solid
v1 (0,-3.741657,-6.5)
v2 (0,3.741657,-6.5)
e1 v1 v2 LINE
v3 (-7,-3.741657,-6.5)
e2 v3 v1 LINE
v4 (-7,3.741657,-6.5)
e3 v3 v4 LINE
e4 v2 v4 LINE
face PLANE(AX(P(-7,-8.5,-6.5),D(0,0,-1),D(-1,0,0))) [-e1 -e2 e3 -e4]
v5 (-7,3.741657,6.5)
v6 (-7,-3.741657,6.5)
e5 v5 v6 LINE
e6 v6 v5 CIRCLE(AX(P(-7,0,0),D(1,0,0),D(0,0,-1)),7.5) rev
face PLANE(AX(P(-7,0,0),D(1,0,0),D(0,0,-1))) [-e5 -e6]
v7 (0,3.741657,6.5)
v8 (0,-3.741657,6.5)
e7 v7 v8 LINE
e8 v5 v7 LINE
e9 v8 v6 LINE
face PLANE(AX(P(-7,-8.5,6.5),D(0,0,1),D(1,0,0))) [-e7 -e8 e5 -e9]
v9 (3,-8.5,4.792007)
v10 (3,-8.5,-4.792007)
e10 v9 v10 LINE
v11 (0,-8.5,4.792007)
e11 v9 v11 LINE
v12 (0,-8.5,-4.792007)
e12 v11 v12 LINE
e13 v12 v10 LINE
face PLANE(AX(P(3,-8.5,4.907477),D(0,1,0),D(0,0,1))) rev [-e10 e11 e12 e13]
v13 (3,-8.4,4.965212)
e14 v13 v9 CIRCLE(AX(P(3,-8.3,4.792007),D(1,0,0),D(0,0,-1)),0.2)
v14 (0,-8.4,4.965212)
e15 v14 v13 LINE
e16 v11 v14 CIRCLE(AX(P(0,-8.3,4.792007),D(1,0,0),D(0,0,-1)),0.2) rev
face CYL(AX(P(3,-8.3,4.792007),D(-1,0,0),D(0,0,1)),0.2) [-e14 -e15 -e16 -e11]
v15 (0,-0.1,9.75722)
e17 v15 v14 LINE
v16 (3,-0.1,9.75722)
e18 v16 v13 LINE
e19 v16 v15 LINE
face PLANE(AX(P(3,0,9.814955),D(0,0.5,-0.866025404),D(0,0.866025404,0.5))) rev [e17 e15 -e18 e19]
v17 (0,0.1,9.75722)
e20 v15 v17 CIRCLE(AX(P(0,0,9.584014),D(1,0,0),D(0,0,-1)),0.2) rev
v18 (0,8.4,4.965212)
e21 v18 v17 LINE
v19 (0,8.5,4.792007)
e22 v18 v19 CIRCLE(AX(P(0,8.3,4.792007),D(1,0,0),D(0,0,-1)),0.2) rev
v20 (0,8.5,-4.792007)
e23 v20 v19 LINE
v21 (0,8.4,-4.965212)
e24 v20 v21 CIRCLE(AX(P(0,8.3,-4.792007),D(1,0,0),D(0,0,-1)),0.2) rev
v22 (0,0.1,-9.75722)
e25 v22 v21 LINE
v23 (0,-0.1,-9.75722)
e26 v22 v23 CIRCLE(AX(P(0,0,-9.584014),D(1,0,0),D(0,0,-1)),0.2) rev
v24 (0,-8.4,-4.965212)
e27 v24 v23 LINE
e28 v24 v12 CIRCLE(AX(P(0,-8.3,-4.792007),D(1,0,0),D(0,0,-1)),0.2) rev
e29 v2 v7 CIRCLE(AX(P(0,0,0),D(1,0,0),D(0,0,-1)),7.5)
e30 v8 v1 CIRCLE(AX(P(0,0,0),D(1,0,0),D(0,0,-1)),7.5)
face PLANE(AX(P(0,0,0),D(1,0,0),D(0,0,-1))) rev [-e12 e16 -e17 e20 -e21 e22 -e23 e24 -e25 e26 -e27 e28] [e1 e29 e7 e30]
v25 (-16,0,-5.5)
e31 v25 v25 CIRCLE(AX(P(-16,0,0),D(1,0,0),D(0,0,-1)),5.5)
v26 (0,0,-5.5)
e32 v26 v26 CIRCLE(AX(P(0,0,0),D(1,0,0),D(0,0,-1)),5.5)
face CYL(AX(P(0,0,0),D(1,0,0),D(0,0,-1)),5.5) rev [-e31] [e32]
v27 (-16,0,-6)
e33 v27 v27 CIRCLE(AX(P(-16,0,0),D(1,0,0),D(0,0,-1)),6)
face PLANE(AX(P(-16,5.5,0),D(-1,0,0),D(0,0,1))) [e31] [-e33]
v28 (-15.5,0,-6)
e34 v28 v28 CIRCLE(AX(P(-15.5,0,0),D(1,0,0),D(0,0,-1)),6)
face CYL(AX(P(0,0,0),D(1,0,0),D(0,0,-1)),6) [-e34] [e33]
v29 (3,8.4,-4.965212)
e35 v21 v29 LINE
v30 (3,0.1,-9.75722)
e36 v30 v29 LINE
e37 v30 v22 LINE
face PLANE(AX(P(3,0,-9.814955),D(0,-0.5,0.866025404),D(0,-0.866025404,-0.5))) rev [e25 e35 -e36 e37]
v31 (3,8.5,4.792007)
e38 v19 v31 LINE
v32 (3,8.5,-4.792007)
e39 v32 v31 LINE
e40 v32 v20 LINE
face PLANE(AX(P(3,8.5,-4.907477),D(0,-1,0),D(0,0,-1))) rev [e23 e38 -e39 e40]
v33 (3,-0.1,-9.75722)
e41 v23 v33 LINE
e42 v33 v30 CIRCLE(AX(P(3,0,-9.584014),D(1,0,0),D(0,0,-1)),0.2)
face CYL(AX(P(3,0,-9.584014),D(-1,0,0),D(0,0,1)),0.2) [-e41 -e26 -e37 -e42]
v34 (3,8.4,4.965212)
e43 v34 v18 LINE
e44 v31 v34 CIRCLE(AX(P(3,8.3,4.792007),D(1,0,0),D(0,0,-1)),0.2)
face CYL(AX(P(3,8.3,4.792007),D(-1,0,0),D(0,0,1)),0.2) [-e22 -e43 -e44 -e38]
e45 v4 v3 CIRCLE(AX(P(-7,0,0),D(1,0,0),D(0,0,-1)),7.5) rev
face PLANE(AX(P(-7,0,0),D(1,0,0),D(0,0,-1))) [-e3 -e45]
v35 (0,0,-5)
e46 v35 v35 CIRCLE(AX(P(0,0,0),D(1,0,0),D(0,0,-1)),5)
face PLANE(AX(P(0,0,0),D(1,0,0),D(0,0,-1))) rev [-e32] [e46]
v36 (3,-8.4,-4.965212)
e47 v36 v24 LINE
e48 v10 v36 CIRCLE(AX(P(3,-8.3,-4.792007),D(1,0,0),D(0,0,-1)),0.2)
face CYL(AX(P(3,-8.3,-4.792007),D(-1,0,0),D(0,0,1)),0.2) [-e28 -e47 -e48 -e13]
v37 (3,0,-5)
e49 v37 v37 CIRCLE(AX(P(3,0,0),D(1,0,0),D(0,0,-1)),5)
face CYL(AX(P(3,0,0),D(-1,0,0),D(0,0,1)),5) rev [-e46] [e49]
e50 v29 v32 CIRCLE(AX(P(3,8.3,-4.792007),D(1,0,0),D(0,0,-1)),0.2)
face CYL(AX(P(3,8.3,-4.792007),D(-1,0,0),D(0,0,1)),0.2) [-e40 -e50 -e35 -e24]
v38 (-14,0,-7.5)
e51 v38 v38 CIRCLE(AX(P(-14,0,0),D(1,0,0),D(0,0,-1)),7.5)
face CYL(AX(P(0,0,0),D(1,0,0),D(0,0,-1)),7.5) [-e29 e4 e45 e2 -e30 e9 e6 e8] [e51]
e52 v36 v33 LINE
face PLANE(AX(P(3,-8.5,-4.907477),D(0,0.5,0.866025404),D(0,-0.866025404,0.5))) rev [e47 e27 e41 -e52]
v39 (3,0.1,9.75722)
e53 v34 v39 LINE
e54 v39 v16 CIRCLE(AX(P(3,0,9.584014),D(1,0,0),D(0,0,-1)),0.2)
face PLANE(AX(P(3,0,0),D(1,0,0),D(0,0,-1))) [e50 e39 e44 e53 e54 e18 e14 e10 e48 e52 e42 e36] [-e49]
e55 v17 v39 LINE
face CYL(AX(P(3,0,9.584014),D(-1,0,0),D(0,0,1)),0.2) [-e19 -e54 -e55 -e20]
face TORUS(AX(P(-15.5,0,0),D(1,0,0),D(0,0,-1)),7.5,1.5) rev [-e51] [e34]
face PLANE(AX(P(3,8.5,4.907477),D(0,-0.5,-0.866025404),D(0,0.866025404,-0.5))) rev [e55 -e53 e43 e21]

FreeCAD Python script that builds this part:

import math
import FreeCAD as App
import Part
import Sketcher
from FreeCAD import Vector
Q = App.Units.Quantity


def edges_at(feature, points):
    """Names of the edges that pass closest to the given points."""
    edges = feature.Shape.Edges
    near = lambda p: min(range(len(edges)), key=lambda i: edges[i].distToShape(Part.Vertex(*p))[0])
    return sorted({f"Edge{near(p) + 1}" for p in points})


def add_polygon(sketch, points):
    """Adds a closed chain of lines whose ends are joined by coincident constraints."""
    first, n = sketch.GeometryCount, len(points)
    for a, b in zip(points, points[1:] + points[:1]):
        sketch.addGeometry(Part.LineSegment(App.Vector(*a, 0), App.Vector(*b, 0)), False)
    for i in range(n):
        sketch.addConstraint(Sketcher.Constraint("Coincident", first + i, 2, first + (i + 1) % n, 1))

doc = App.newDocument("Part")
body = doc.addObject("PartDesign::Body", "Body")

# Sketch on XY plane
sketch1 = body.newObject("Sketcher::SketchObject", "Sketch")
sketch1.AttachmentSupport = (doc.getObject("XY_Plane"), [""])
sketch1.MapMode = "FlatFace"
sketch1.addGeometry([
    Part.LineSegment(Vector(-16, 5.5, 0), Vector(0, 5.5, 0)),  # 0
    Part.LineSegment(Vector(0, 5.5, 0), Vector(0, 7.5, 0)),  # 1
    Part.LineSegment(Vector(0, 7.5, 0), Vector(-14, 7.5, 0)),  # 2
    Part.ArcOfCircle(Part.Circle(Vector(-15.5, 7.5, 0), Vector(0, 0, 1), 1.5), math.radians(-90), math.radians(0)),  # 3
    Part.LineSegment(Vector(-15.5, 6, 0), Vector(-16, 6, 0)),  # 4
    Part.LineSegment(Vector(-16, 6, 0), Vector(-16, 5.5, 0)),  # 5
], False)
sketch1.addConstraint([
    Sketcher.Constraint("Coincident", 0, 2, 1, 1),
    Sketcher.Constraint("Coincident", 1, 2, 2, 1),
    Sketcher.Constraint("Coincident", 2, 2, 3, 2),
    Sketcher.Constraint("Tangent", 3, 1, 4, 1),
    Sketcher.Constraint("Coincident", 4, 2, 5, 1),
    Sketcher.Constraint("Coincident", 5, 2, 0, 1),
    Sketcher.Constraint("Horizontal", 0),
    Sketcher.Constraint("Vertical", 1),
    Sketcher.Constraint("Horizontal", 2),
    Sketcher.Constraint("Horizontal", 4),
    Sketcher.Constraint("Vertical", 5),
    Sketcher.Constraint("PointOnObject", 0, 2, -2),
    Sketcher.Constraint("Horizontal", 3, 3, 1, 2),
    Sketcher.Constraint("Equal", 4, 5),
    Sketcher.Constraint("Radius", 3, 1.5),
    Sketcher.Constraint("DistanceX", 0, 1, 0, 2, 16.0),
    Sketcher.Constraint("DistanceX", 2, 2, 2, 1, 14.0),
    Sketcher.Constraint("DistanceY", -1, 1, 3, 1, 6.0),
])
revolution = body.newObject("PartDesign::Revolution", "Revolution")
revolution.Profile = sketch1
revolution.ReferenceAxis = (sketch1, ["H_Axis"])
revolution.Angle = 360

# Sketch on YZ plane
sketch2 = body.newObject("Sketcher::SketchObject", "Sketch001")
sketch2.AttachmentSupport = (doc.getObject("YZ_Plane"), [""])
sketch2.MapMode = "FlatFace"
add_polygon(sketch2, [(11, 11), (-11, 11), (-11, -11), (11, -11)])  # lines 0-3
add_polygon(sketch2, [(-8, -6), (-8, 6), (8, 6), (8, -6)])  # lines 4-7
sketch2.addConstraint([
    Sketcher.Constraint("Horizontal", 0),
    Sketcher.Constraint("Vertical", 1),
    Sketcher.Constraint("Horizontal", 2),
    Sketcher.Constraint("Vertical", 3),
    Sketcher.Constraint("Vertical", 4),
    Sketcher.Constraint("Horizontal", 5),
    Sketcher.Constraint("Vertical", 6),
    Sketcher.Constraint("Horizontal", 7),
    Sketcher.Constraint("Symmetric", 0, 2, 2, 2, -1, 1),
    Sketcher.Constraint("Symmetric", 4, 2, 6, 2, -1, 1),
    Sketcher.Constraint("Equal", 2, 1),
    Sketcher.Constraint("DistanceX", 5, 1, 5, 2, 17.0),
    Sketcher.Constraint("DistanceY", 4, 1, 4, 2, 13.0),
    Sketcher.Constraint("DistanceX", 0, 2, 0, 1, 22.314),
])
pocket1 = body.newObject("PartDesign::Pocket", "Pocket")
pocket1.Profile = sketch2
pocket1.Length = 7

# Sketch on YZ plane
sketch3 = body.newObject("Sketcher::SketchObject", "Sketch002")
sketch3.AttachmentSupport = (doc.getObject("YZ_Plane"), [""])
sketch3.MapMode = "FlatFace"
add_polygon(sketch3, [(0, -10), (8, -5), (8, 5), (0, 10), (-8, 5), (-8, -5)])  # lines 0-5
sketch3.addGeometry(Part.Circle(Vector(0, 0, 0), Vector(0, 0, 1), 5), False)  # 6
sketch3.addConstraint([
    Sketcher.Constraint("Vertical", 1),
    Sketcher.Constraint("Vertical", 4),
    Sketcher.Constraint("Coincident", 6, 3, -1, 1),
    Sketcher.Constraint("Symmetric", 0, 2, 3, 2, -1, 1),
    Sketcher.Constraint("Symmetric", 2, 2, 5, 2, -1, 1),
    Sketcher.Constraint("PointOnObject", 2, 2, -2),
    Sketcher.Constraint("Parallel", 2, 5),
    Sketcher.Constraint("Horizontal", 1, 2, 3, 2),
    Sketcher.Constraint("Diameter", 6, 10.0),
    Sketcher.Constraint("Angle", 0, Q("30 deg")),
    Sketcher.Constraint("DistanceX", 3, 2, 1, 2, 17.0),
    Sketcher.Constraint("DistanceY", 1, 1, 1, 2, 9.814955),
])
pad1 = body.newObject("PartDesign::Pad", "Pad")
pad1.Profile = sketch3
pad1.Length = 3
doc.recompute()

fillet = body.newObject("PartDesign::Fillet", "Fillet")
fillet.Base = (pad1, edges_at(pad1, [
    (1.5, -8.5, -4.907),
    (1.5, 0, -9.815),
    (1.5, 8.5, -4.907),
    (1.5, 8.5, 4.907),
    (1.5, 0, 9.815),
    (1.5, -8.5, 4.907),
]))
fillet.Radius = 0.2

doc.recompute()
